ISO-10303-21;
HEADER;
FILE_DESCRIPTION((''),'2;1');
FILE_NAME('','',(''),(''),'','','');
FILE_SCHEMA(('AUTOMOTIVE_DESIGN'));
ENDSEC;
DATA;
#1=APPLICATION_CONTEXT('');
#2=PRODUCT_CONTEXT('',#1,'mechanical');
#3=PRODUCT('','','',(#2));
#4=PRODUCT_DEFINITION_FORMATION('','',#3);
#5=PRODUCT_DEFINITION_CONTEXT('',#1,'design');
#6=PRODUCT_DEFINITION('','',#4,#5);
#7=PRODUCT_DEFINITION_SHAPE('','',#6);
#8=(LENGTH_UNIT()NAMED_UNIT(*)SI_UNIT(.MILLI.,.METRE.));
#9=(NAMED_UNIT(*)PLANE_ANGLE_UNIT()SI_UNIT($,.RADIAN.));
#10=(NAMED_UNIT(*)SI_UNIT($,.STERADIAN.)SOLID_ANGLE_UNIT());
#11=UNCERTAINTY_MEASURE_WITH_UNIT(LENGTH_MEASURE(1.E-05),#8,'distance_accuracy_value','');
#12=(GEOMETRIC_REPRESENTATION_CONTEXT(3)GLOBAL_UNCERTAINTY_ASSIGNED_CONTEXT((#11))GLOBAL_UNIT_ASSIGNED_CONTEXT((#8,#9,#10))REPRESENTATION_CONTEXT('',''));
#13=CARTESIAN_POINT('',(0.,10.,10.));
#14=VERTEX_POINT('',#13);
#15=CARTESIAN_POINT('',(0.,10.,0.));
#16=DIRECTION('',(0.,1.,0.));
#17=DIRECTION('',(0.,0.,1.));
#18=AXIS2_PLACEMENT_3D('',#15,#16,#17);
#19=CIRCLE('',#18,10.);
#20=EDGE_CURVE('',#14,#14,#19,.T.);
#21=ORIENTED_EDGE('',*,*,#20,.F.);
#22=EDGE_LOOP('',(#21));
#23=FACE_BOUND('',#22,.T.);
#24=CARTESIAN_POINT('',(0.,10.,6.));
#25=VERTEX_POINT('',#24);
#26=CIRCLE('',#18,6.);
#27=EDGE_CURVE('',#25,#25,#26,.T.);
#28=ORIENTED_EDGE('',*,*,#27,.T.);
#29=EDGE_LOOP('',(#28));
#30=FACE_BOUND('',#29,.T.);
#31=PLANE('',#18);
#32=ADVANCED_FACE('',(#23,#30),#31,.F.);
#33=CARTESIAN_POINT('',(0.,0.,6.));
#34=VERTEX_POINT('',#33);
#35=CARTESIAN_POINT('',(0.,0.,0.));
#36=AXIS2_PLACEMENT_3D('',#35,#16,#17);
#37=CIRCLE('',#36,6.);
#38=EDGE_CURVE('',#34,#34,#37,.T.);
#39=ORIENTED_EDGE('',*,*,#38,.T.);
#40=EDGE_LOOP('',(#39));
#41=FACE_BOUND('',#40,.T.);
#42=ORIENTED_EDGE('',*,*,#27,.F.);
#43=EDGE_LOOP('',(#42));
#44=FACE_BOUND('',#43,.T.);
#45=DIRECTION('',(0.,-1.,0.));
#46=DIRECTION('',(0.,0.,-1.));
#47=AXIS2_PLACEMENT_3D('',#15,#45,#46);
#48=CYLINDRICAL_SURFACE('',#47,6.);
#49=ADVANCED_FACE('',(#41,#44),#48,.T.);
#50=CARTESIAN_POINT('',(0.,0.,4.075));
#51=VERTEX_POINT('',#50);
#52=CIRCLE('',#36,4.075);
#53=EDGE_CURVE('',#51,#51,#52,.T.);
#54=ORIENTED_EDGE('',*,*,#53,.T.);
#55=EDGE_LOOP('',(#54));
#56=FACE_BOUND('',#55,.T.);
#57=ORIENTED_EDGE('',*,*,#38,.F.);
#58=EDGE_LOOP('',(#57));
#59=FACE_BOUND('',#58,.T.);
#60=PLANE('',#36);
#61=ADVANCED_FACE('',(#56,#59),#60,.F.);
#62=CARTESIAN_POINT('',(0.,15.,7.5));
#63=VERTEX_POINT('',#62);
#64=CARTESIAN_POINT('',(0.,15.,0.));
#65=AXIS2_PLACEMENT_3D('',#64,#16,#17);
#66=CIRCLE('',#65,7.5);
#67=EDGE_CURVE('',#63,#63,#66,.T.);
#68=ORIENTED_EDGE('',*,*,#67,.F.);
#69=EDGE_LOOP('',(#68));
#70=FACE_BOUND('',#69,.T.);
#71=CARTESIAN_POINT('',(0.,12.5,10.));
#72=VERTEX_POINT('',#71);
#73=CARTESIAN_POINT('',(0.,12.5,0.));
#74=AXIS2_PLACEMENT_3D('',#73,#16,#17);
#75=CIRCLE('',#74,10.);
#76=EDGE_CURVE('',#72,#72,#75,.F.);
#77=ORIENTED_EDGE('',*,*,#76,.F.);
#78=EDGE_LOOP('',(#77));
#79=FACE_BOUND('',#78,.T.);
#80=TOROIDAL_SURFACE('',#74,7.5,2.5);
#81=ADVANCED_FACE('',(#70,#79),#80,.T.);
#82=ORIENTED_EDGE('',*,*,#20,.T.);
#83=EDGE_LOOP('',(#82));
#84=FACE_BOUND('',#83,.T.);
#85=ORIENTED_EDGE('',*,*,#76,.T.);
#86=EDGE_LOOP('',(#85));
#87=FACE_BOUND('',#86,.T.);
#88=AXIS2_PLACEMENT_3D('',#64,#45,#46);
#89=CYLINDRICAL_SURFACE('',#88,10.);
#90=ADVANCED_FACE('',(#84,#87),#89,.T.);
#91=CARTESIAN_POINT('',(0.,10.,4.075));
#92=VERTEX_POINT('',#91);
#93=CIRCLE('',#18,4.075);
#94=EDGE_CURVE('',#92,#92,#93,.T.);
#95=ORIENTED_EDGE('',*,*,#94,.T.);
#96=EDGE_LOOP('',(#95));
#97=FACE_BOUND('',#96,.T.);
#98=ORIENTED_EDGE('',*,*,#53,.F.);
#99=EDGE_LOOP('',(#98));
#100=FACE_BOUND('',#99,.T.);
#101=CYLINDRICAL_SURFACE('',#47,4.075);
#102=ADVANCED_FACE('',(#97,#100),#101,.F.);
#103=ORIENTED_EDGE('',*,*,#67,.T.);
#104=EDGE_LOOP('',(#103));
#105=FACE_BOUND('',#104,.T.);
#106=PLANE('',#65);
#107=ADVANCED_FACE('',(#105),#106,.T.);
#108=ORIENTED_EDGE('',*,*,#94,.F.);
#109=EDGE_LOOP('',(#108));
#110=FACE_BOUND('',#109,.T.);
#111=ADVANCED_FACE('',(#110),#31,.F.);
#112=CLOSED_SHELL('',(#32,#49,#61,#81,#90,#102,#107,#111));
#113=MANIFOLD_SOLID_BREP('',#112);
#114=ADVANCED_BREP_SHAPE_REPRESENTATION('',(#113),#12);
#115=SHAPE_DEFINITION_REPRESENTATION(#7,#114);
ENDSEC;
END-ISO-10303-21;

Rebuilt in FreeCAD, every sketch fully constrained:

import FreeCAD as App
import Part
import Sketcher

V = App.Vector
Q = App.Units.Quantity


def edges_at(feature, points):
    """Names of the edges that pass closest to the given points."""
    edges = feature.Shape.Edges
    near = lambda p: min(range(len(edges)), key=lambda i: edges[i].distToShape(Part.Vertex(*p))[0])
    return sorted({f"Edge{near(p) + 1}" for p in points})

doc = App.newDocument("Part")
params = doc.addObject("Spreadsheet::Sheet", "Params")
for row, (alias, value) in enumerate([
    ("sketch1_diameter", "12 mm"),
    ("sketch1_diameter2", "8.15 mm"),
    ("pad1_length", "10 mm"),
    ("sketch2_diameter", "20 mm"),
    ("pad2_length", "5 mm"),
    ("fillet_radius", "2.5 mm"),
], start=1):
    params.set(f"A{row}", alias)
    params.set(f"B{row}", "=" + value)
    params.setAlias(f"B{row}", alias)

body = doc.addObject("PartDesign::Body", "Body")

sketch1 = body.newObject("Sketcher::SketchObject", "Sketch")
sketch1.AttachmentSupport = (doc.getObject("XZ_Plane"), [""])
sketch1.MapMode = "FlatFace"
sketch1.addGeometry([
    Part.Circle(V(0, 0, 0), V(0, 0, 1), 6),
    Part.Circle(V(0, 0, 0), V(0, 0, 1), 4.1),
], False)
sketch1.addConstraint([
    Sketcher.Constraint("Coincident", 0, 3, -1, 1),
    Sketcher.Constraint("Coincident", 1, 3, -1, 1),
    Sketcher.Constraint("Diameter", 0, Q("12 mm")),
    Sketcher.Constraint("Diameter", 1, Q("8.15 mm")),
])
sketch1.setExpression("Constraints[2]", "Params.sketch1_diameter")
sketch1.setExpression("Constraints[3]", "Params.sketch1_diameter2")
pad1 = body.newObject("PartDesign::Pad", "Pad")
pad1.Profile = sketch1
pad1.setExpression("Length", "Params.pad1_length")
pad1.Reversed = True

sketch2 = body.newObject("Sketcher::SketchObject", "Sketch001")
sketch2.AttachmentSupport = (doc.getObject("XZ_Plane"), [""])
sketch2.MapMode = "FlatFace"
sketch2.AttachmentOffset = App.Placement(V(0, 0, -10), App.Rotation())
sketch2.addGeometry(Part.Circle(V(0, 0, 0), V(0, 0, 1), 10), False)
sketch2.addConstraint([
    Sketcher.Constraint("Coincident", 0, 3, -1, 1),
    Sketcher.Constraint("Diameter", 0, Q("20 mm")),
])
sketch2.setExpression("Constraints[1]", "Params.sketch2_diameter")
pad2 = body.newObject("PartDesign::Pad", "Pad001")
pad2.Profile = sketch2
pad2.setExpression("Length", "Params.pad2_length")
pad2.Reversed = True
doc.recompute()

fillet = body.newObject("PartDesign::Fillet", "Fillet")
fillet.Base = (pad2, edges_at(pad2, [(0, 15, -10)]))
fillet.setExpression("Radius", "Params.fillet_radius")

doc.recompute()
